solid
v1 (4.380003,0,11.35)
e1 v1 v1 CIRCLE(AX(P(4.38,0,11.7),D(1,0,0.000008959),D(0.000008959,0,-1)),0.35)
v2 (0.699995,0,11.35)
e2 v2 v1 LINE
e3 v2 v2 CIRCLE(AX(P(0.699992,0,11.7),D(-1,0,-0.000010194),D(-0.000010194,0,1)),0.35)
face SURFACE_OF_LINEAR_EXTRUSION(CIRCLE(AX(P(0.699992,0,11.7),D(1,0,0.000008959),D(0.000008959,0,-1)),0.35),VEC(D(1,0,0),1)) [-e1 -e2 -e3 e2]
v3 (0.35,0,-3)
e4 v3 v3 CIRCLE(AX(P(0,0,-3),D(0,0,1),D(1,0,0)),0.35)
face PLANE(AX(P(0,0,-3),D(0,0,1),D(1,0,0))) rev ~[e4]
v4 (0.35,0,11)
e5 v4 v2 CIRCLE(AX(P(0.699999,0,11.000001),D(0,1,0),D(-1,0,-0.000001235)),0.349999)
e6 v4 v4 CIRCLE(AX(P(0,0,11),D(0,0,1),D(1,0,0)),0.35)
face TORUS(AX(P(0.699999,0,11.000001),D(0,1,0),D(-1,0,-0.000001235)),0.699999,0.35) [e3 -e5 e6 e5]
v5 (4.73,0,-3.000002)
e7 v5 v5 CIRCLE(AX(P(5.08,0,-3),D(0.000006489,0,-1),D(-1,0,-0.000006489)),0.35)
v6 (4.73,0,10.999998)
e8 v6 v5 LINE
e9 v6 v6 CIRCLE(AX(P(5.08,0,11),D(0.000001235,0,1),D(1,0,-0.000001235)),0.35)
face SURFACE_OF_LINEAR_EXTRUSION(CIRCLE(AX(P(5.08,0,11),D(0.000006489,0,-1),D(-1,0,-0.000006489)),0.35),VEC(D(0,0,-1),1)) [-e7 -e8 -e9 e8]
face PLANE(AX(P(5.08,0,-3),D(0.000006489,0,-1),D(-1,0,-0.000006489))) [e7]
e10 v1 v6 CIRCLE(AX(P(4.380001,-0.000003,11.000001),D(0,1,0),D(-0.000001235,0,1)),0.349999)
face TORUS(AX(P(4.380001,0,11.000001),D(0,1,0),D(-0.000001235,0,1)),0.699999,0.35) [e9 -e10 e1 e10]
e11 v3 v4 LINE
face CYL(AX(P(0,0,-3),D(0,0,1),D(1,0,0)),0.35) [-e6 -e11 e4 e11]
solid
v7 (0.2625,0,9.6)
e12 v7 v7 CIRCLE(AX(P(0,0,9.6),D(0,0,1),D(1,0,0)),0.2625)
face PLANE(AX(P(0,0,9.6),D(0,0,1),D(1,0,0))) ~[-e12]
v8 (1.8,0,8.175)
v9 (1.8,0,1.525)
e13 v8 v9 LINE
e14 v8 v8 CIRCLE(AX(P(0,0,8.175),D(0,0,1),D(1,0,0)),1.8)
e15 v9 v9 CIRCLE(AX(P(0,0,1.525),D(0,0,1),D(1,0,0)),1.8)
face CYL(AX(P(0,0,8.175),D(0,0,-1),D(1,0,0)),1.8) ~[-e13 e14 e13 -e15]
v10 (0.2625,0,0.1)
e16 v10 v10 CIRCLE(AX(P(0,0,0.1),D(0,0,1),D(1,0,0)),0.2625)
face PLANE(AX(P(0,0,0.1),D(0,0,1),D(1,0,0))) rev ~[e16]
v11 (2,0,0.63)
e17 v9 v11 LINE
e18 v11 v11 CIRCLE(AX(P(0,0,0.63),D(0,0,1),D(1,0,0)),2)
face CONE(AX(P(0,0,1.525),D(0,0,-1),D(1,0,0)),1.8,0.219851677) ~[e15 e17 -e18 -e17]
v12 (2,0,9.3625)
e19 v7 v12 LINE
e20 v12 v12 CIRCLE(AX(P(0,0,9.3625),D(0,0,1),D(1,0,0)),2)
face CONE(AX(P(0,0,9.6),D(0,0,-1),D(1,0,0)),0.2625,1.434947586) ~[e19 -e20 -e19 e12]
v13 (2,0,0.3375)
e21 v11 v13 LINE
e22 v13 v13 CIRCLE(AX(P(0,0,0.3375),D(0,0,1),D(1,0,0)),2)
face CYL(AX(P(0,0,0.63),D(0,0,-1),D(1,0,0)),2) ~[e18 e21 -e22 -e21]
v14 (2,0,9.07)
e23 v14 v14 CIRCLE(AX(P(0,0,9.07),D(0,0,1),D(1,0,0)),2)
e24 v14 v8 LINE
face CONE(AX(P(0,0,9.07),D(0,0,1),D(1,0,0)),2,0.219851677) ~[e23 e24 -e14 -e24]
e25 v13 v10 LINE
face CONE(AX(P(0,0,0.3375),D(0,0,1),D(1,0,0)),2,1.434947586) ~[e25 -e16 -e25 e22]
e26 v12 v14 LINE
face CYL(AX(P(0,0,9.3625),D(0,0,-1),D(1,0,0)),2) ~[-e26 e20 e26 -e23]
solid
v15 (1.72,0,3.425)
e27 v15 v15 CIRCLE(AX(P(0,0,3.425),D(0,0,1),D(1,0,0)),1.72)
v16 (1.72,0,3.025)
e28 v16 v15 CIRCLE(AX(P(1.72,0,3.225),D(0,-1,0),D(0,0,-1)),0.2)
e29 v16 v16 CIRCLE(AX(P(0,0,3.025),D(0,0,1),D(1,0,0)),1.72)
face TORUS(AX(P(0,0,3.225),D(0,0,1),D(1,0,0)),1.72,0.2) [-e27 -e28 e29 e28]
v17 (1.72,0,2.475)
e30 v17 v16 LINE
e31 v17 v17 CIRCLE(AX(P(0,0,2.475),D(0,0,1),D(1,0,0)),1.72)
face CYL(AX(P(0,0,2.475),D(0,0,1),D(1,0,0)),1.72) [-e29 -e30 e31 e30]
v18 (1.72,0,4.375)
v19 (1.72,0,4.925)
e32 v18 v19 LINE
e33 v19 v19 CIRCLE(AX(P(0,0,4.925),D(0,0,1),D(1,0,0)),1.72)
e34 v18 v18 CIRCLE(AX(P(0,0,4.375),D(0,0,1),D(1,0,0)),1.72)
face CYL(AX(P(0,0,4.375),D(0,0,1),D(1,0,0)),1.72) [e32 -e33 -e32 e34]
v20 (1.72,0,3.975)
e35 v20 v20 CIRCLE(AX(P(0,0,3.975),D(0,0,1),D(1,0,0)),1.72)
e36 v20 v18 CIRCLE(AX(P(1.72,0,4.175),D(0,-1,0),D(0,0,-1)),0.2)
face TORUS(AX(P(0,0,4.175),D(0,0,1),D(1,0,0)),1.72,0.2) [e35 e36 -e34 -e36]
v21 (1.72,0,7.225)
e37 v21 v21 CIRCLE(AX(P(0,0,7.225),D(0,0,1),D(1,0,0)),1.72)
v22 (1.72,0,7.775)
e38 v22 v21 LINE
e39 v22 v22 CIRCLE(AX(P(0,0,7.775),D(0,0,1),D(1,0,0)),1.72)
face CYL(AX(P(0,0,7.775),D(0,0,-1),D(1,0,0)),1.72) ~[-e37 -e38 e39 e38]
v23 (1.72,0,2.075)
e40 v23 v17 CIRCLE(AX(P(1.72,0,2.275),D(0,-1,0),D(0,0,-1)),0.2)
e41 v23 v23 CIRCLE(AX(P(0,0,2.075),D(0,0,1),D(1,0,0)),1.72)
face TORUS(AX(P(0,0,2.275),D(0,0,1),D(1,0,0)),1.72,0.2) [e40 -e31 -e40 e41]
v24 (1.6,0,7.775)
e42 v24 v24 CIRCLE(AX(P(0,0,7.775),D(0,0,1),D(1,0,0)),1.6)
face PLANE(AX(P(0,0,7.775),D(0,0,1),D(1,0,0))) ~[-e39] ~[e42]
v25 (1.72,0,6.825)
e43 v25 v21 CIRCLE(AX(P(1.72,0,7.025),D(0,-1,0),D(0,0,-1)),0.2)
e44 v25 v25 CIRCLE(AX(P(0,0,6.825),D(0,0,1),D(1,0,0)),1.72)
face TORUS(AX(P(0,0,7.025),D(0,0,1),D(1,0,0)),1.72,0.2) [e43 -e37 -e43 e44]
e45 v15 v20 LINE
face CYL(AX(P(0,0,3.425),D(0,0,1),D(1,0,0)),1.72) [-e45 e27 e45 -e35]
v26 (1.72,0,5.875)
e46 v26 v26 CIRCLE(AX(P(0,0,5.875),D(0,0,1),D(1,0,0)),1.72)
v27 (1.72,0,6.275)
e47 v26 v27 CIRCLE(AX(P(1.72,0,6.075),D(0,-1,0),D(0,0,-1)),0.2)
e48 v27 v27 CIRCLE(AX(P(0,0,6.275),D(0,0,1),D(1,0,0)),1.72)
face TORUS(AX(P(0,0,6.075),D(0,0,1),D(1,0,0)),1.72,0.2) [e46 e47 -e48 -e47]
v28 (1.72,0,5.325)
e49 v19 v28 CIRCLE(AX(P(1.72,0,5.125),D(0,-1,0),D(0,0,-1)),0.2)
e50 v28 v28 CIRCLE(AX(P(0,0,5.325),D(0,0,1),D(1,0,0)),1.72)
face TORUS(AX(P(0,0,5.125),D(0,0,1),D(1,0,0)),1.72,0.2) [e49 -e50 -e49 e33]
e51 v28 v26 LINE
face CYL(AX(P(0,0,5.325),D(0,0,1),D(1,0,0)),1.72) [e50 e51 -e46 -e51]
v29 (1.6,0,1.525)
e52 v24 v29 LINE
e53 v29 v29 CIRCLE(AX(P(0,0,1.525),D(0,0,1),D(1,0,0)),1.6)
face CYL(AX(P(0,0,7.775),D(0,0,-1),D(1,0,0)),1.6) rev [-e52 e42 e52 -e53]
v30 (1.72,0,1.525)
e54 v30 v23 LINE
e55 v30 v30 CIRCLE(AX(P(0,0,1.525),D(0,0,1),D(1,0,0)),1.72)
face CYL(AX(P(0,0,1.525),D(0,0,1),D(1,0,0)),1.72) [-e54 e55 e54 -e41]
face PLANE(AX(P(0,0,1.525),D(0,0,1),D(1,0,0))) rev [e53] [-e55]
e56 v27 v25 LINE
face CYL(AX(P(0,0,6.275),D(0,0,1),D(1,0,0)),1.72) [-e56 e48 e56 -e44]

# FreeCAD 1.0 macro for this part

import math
import FreeCAD as App
import Part
import Sketcher
from FreeCAD import Vector
Q = App.Units.Quantity


def add_polygon(sketch, points):
    """Adds a closed chain of lines whose ends are joined by coincident constraints."""
    first, n = sketch.GeometryCount, len(points)
    for a, b in zip(points, points[1:] + points[:1]):
        sketch.addGeometry(Part.LineSegment(App.Vector(*a, 0), App.Vector(*b, 0)), False)
    for i in range(n):
        sketch.addConstraint(Sketcher.Constraint("Coincident", first + i, 2, first + (i + 1) % n, 1))

doc = App.newDocument("Part")
body = doc.addObject("PartDesign::Body", "Body")

# Sketch on XY plane
sketch1 = body.newObject("Sketcher::SketchObject", "Sketch")
sketch1.AttachmentSupport = (doc.getObject("XY_Plane"), [""])
sketch1.MapMode = "FlatFace"
sketch1.AttachmentOffset = App.Placement(Vector(0, 0, -2), App.Rotation())
sketch1.addGeometry(Part.Circle(Vector(0, 0, 0), Vector(0, 0, 1), 0.35), False)
sketch1.addConstraint([
    Sketcher.Constraint("Coincident", 0, 3, -1, 1),
    Sketcher.Constraint("Diameter", 0, Q("0.7 mm")),
])

# Sketch on XZ plane
sketch2 = body.newObject("Sketcher::SketchObject", "Sketch001")
sketch2.AttachmentSupport = (doc.getObject("XZ_Plane"), [""])
sketch2.MapMode = "FlatFace"
sketch2.addGeometry([
    Part.LineSegment(Vector(0, -3, 0), Vector(0, 11, 0)),  # 0
    Part.ArcOfCircle(Part.Circle(Vector(0.7, 11, 0), Vector(0, 0, 1), 0.7), math.radians(90), math.radians(180)),  # 1
    Part.LineSegment(Vector(0.7, 11.7, 0), Vector(4.4, 11.7, 0)),  # 2
    Part.ArcOfCircle(Part.Circle(Vector(4.4, 11, 0), Vector(0, 0, 1), 0.7), math.radians(0), math.radians(90)),  # 3
    Part.LineSegment(Vector(5.1, 11, 0), Vector(5.1, -3, 0)),  # 4
], False)
sketch2.addConstraint([
    Sketcher.Constraint("Tangent", 0, 2, 1, 2),
    Sketcher.Constraint("Coincident", 1, 1, 2, 1),
    Sketcher.Constraint("Tangent", 2, 2, 3, 2),
    Sketcher.Constraint("Tangent", 3, 1, 4, 1),
    Sketcher.Constraint("Vertical", 0),
    Sketcher.Constraint("Horizontal", 2),
    Sketcher.Constraint("Vertical", 4),
    Sketcher.Constraint("Equal", 1, 3),
    Sketcher.Constraint("PointOnObject", 0, 1, -2),
    Sketcher.Constraint("Horizontal", 0, 1, 4, 2),
    Sketcher.Constraint("Radius", 1, Q("0.699999 mm")),
    Sketcher.Constraint("DistanceY", 0, 1, 0, 2, Q("14 mm")),
    Sketcher.Constraint("DistanceY", -1, 1, 1, 3, Q("11.000001 mm")),
    Sketcher.Constraint("DistanceX", -1, 1, 3, 3, Q("4.380001 mm")),
    Sketcher.Constraint("DistanceX", 2, 1, 2, 2, Q("3.680008 mm")),
])
doc.recompute()

additivepipe = body.newObject("PartDesign::AdditivePipe", "AdditivePipe")
additivepipe.Profile = sketch1
additivepipe.Spine = (sketch2, ["Edge1", "Edge2", "Edge3", "Edge4", "Edge5"])
body2 = doc.addObject("PartDesign::Body", "Body001")

# Sketch on XZ plane
sketch3 = body2.newObject("Sketcher::SketchObject", "Sketch002")
sketch3.AttachmentSupport = (doc.getObject("XZ_Plane001"), [""])
sketch3.MapMode = "FlatFace"
add_polygon(sketch3, [(0, 9.6), (0, 0.1), (0.26, 0.1), (2, 0.34), (2, 0.63), (1.8, 1.52), (1.8, 8.18), (2, 9.07), (2, 9.36), (0.26, 9.6)])  # lines 0-9
sketch3.addConstraint([
    Sketcher.Constraint("Vertical", 0),
    Sketcher.Constraint("Horizontal", 1),
    Sketcher.Constraint("Vertical", 3),
    Sketcher.Constraint("Vertical", 5),
    Sketcher.Constraint("Vertical", 7),
    Sketcher.Constraint("Horizontal", 9),
    Sketcher.Constraint("PointOnObject", 0, 2, -2),
    Sketcher.Constraint("Vertical", 3, 2, 6, 2),
    Sketcher.Constraint("Vertical", 1, 2, 8, 2),
    Sketcher.Constraint("Equal", 3, 7),
    Sketcher.Constraint("Equal", 4, 6),
    Sketcher.Constraint("Equal", 2, 8),
    Sketcher.Constraint("DistanceY", 0, 2, 0, 1, Q("9.5 mm")),
    Sketcher.Constraint("DistanceX", -1, 1, 2, 2, Q("2 mm")),
    Sketcher.Constraint("DistanceY", 5, 1, 5, 2, Q("6.65 mm")),
    Sketcher.Constraint("DistanceY", -1, 1, 0, 2, Q("0.1 mm")),
    Sketcher.Constraint("DistanceX", -1, 1, 4, 2, Q("1.8 mm")),
    Sketcher.Constraint("DistanceY", -1, 1, 3, 2, Q("0.63 mm")),
    Sketcher.Constraint("DistanceX", 1, 1, 1, 2, Q("0.2625 mm")),
    Sketcher.Constraint("DistanceY", 3, 1, 3, 2, Q("0.2925 mm")),
])
revolution = body2.newObject("PartDesign::Revolution", "Revolution")
revolution.Profile = sketch3
revolution.ReferenceAxis = (sketch3, ["V_Axis"])
revolution.Angle = 360
body3 = doc.addObject("PartDesign::Body", "Body002")

# Sketch on XZ plane
sketch4 = body3.newObject("Sketcher::SketchObject", "Sketch003")
sketch4.AttachmentSupport = (doc.getObject("XZ_Plane002"), [""])
sketch4.MapMode = "FlatFace"
sketch4.addGeometry([
    Part.LineSegment(Vector(1.6, 7.78, 0), Vector(1.6, 1.52, 0)),  # 0
    Part.LineSegment(Vector(1.6, 1.52, 0), Vector(1.72, 1.52, 0)),  # 1
    Part.LineSegment(Vector(1.72, 1.52, 0), Vector(1.72, 2.08, 0)),  # 2
    Part.ArcOfCircle(Part.Circle(Vector(1.72, 2.27, 0), Vector(0, 0, 1), 0.2), math.radians(-90), math.radians(90)),  # 3
    Part.LineSegment(Vector(1.72, 2.48, 0), Vector(1.72, 3.02, 0)),  # 4
    Part.ArcOfCircle(Part.Circle(Vector(1.72, 3.23, 0), Vector(0, 0, 1), 0.2), math.radians(-90), math.radians(90)),  # 5
    Part.LineSegment(Vector(1.72, 3.42, 0), Vector(1.72, 3.98, 0)),  # 6
    Part.ArcOfCircle(Part.Circle(Vector(1.72, 4.17, 0), Vector(0, 0, 1), 0.2), math.radians(-90), math.radians(90)),  # 7
    Part.LineSegment(Vector(1.72, 4.38, 0), Vector(1.72, 4.92, 0)),  # 8
    Part.ArcOfCircle(Part.Circle(Vector(1.72, 5.12, 0), Vector(0, 0, 1), 0.2), math.radians(-90), math.radians(90)),  # 9
    Part.LineSegment(Vector(1.72, 5.33, 0), Vector(1.72, 5.88, 0)),  # 10
    Part.ArcOfCircle(Part.Circle(Vector(1.72, 6.08, 0), Vector(0, 0, 1), 0.2), math.radians(-90), math.radians(90)),  # 11
    Part.LineSegment(Vector(1.72, 6.28, 0), Vector(1.72, 6.83, 0)),  # 12
    Part.ArcOfCircle(Part.Circle(Vector(1.72, 7.03, 0), Vector(0, 0, 1), 0.2), math.radians(-90), math.radians(90)),  # 13
    Part.LineSegment(Vector(1.72, 7.22, 0), Vector(1.72, 7.78, 0)),  # 14
    Part.LineSegment(Vector(1.72, 7.78, 0), Vector(1.6, 7.78, 0)),  # 15
], False)
sketch4.addConstraint([
    Sketcher.Constraint("Coincident", 0, 2, 1, 1),
    Sketcher.Constraint("Coincident", 1, 2, 2, 1),
    Sketcher.Constraint("Coincident", 2, 2, 3, 1),
    Sketcher.Constraint("Coincident", 3, 2, 4, 1),
    Sketcher.Constraint("Coincident", 4, 2, 5, 1),
    Sketcher.Constraint("Coincident", 5, 2, 6, 1),
    Sketcher.Constraint("Coincident", 6, 2, 7, 1),
    Sketcher.Constraint("Coincident", 7, 2, 8, 1),
    Sketcher.Constraint("Coincident", 8, 2, 9, 1),
    Sketcher.Constraint("Coincident", 9, 2, 10, 1),
    Sketcher.Constraint("Coincident", 10, 2, 11, 1),
    Sketcher.Constraint("Coincident", 11, 2, 12, 1),
    Sketcher.Constraint("Coincident", 12, 2, 13, 1),
    Sketcher.Constraint("Coincident", 13, 2, 14, 1),
    Sketcher.Constraint("Coincident", 14, 2, 15, 1),
    Sketcher.Constraint("Coincident", 15, 2, 0, 1),
    Sketcher.Constraint("Vertical", 0),
    Sketcher.Constraint("Horizontal", 1),
    Sketcher.Constraint("Vertical", 2),
    Sketcher.Constraint("Vertical", 4),
    Sketcher.Constraint("Vertical", 6),
    Sketcher.Constraint("Vertical", 8),
    Sketcher.Constraint("Vertical", 10),
    Sketcher.Constraint("Vertical", 12),
    Sketcher.Constraint("Vertical", 14),
    Sketcher.Constraint("Horizontal", 15),
    Sketcher.Constraint("Equal", 3, 5),
    Sketcher.Constraint("Equal", 5, 7),
    Sketcher.Constraint("Equal", 7, 9),
    Sketcher.Constraint("Equal", 9, 11),
    Sketcher.Constraint("Equal", 11, 13),
    Sketcher.Constraint("Vertical", 3, 3, 5, 3),
    Sketcher.Constraint("Vertical", 5, 3, 7, 3),
    Sketcher.Constraint("Vertical", 7, 3, 9, 3),
    Sketcher.Constraint("Vertical", 9, 3, 11, 3),
    Sketcher.Constraint("Vertical", 11, 3, 13, 3),
    Sketcher.Constraint("Vertical", 13, 3, 1, 2),
    Sketcher.Constraint("Vertical", 2, 2, 3, 2),
    Sketcher.Constraint("Vertical", 4, 2, 5, 2),
    Sketcher.Constraint("Vertical", 6, 2, 7, 2),
    Sketcher.Constraint("Vertical", 8, 2, 9, 2),
    Sketcher.Constraint("Vertical", 10, 2, 11, 2),
    Sketcher.Constraint("Vertical", 12, 2, 13, 2),
    Sketcher.Constraint("Equal", 2, 4),
    Sketcher.Constraint("Equal", 4, 6),
    Sketcher.Constraint("Equal", 6, 8),
    Sketcher.Constraint("Equal", 8, 10),
    Sketcher.Constraint("Equal", 10, 12),
    Sketcher.Constraint("Equal", 12, 14),
    Sketcher.Constraint("Radius", 3, Q("0.2 mm")),
    Sketcher.Constraint("DistanceX", 1, 1, 1, 2, Q("0.12 mm")),
    Sketcher.Constraint("DistanceY", 0, 2, 0, 1, Q("6.25 mm")),
    Sketcher.Constraint("DistanceX", -1, 1, 0, 2, Q("1.6 mm")),
    Sketcher.Constraint("DistanceY", -1, 1, 3, 3, Q("2.275 mm")),
])
revolution2 = body3.newObject("PartDesign::Revolution", "Revolution001")
revolution2.Profile = sketch4
revolution2.ReferenceAxis = (sketch4, ["V_Axis"])
revolution2.Angle = 360

doc.recompute()
